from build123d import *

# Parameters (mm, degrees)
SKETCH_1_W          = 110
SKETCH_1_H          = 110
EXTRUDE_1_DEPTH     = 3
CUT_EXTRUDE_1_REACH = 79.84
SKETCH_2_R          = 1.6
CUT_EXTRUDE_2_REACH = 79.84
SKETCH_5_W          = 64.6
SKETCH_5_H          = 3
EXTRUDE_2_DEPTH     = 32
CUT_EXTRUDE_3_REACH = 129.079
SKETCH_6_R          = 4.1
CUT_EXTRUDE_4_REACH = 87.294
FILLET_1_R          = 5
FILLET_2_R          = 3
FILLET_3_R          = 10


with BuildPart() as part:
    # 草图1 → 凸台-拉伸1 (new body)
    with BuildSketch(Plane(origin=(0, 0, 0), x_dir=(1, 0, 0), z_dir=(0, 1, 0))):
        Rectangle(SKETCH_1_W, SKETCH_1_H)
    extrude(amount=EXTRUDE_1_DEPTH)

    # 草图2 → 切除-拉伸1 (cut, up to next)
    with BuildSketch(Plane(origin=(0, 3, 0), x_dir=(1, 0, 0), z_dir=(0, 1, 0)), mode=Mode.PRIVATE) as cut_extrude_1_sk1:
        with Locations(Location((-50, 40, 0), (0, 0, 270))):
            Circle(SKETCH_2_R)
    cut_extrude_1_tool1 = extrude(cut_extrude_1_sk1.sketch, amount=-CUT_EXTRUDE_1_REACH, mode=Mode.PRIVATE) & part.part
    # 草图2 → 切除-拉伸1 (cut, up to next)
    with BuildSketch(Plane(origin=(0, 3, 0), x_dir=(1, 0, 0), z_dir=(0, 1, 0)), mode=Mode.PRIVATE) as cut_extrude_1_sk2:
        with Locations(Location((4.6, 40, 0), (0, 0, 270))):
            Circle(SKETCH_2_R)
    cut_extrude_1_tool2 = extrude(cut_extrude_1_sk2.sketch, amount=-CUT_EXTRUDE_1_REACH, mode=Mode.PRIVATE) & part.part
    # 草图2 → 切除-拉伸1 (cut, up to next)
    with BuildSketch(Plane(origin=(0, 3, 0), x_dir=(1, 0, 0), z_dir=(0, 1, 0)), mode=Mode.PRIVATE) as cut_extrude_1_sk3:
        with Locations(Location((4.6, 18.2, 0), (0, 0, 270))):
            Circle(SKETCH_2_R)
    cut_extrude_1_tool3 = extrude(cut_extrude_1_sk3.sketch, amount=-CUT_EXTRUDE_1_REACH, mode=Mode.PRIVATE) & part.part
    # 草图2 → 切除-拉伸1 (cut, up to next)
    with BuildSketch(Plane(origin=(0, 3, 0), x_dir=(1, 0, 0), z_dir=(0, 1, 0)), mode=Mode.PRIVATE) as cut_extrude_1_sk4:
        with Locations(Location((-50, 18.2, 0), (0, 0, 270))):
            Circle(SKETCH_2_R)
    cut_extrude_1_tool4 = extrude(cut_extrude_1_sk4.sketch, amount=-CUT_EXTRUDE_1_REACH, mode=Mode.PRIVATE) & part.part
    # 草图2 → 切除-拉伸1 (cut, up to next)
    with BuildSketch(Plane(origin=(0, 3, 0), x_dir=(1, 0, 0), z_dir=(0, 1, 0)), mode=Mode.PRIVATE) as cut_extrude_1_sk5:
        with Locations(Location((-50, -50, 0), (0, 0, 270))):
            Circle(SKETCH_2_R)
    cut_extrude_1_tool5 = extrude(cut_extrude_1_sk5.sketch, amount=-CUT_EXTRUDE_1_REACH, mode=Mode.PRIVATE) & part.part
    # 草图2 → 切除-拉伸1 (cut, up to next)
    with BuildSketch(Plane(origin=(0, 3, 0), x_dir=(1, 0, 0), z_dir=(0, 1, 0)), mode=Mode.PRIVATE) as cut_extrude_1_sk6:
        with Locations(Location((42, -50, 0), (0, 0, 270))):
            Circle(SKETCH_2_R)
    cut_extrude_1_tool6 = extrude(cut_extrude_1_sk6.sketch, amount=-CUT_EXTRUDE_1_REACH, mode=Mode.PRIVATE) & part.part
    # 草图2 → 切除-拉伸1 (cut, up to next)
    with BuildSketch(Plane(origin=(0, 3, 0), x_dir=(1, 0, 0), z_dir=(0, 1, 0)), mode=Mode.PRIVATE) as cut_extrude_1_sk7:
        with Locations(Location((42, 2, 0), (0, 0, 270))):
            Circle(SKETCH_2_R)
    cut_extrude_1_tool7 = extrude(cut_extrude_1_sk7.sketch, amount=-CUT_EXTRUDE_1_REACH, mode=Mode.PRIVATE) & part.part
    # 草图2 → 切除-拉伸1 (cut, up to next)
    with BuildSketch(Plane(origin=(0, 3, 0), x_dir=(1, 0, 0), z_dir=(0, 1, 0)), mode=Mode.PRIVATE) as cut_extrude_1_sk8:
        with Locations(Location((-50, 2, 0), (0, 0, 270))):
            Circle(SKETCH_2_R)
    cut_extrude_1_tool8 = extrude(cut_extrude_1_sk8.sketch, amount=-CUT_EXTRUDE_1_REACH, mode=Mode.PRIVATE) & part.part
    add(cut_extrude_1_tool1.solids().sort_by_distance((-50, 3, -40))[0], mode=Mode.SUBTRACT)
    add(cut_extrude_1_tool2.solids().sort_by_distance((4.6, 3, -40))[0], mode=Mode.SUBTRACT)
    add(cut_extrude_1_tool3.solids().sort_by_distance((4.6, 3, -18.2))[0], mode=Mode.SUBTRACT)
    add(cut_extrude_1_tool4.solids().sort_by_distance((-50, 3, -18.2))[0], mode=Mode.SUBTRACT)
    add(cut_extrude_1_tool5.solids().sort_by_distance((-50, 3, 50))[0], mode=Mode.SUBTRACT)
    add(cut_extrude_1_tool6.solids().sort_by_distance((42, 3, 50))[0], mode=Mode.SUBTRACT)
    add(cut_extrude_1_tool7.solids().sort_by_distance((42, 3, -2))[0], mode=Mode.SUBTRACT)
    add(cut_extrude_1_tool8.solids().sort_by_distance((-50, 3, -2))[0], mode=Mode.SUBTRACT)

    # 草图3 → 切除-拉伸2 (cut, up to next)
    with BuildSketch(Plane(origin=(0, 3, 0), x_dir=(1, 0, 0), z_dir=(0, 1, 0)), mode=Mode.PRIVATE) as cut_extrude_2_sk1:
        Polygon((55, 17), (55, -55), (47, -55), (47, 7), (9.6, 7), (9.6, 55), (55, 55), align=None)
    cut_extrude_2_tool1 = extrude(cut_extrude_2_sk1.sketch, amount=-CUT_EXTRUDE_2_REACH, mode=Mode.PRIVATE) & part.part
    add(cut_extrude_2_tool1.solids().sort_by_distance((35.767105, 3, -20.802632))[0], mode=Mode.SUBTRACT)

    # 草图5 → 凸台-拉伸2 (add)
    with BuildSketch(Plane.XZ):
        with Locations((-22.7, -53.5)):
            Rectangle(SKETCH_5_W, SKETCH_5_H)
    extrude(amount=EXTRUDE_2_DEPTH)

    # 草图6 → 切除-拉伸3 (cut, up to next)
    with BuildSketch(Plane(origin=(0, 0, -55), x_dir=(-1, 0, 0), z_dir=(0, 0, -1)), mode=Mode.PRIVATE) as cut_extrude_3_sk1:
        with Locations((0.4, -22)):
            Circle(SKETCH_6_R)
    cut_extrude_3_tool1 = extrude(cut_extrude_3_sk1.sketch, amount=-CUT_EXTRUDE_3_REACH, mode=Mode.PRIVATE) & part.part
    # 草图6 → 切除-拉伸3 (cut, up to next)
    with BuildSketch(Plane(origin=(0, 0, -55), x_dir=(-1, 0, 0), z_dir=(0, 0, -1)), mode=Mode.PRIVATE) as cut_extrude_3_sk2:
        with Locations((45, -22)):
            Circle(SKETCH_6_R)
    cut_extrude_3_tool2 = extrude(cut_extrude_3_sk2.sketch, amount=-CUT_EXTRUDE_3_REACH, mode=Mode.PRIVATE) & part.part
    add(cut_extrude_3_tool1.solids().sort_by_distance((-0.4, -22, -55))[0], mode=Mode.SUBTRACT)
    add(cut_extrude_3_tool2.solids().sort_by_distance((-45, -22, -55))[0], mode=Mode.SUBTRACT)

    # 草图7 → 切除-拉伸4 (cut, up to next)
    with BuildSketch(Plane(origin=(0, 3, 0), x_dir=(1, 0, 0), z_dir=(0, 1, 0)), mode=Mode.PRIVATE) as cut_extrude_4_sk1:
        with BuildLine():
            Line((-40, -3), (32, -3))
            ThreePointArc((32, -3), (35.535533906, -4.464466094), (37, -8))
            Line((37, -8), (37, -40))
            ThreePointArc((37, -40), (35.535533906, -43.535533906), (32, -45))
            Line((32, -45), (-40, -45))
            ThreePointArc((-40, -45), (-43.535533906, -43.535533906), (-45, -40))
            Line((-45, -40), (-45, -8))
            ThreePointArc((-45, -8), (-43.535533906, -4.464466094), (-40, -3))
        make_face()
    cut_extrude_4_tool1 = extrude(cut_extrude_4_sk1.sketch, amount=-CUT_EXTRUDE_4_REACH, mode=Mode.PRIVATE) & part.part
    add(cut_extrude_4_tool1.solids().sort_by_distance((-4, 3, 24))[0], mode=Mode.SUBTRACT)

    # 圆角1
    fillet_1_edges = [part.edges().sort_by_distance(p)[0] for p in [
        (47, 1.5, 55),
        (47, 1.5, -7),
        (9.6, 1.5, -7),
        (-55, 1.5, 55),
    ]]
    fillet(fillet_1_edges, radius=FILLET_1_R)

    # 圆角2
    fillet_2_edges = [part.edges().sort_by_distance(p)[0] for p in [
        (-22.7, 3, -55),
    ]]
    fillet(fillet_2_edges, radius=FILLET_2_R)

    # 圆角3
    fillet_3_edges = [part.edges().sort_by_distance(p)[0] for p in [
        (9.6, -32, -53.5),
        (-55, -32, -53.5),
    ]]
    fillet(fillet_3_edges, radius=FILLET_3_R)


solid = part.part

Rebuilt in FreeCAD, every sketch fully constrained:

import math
import FreeCAD as App
import Part
import Sketcher

V = App.Vector
Q = App.Units.Quantity


def edges_at(feature, points):
    """Names of the edges that pass closest to the given points."""
    edges = feature.Shape.Edges
    near = lambda p: min(range(len(edges)), key=lambda i: edges[i].distToShape(Part.Vertex(*p))[0])
    return sorted({f"Edge{near(p) + 1}" for p in points})

doc = App.newDocument("Part")
body = doc.addObject("PartDesign::Body", "Body")

sketch1 = body.newObject("Sketcher::SketchObject", "Sketch")
sketch1.AttachmentSupport = (doc.getObject("XZ_Plane"), [""])
sketch1.MapMode = "FlatFace"
sketch1.addGeometry([
    Part.LineSegment(V(-55, -55, 0), V(-55, 55, 0)),
    Part.LineSegment(V(-55, 55, 0), V(55, 55, 0)),
    Part.LineSegment(V(55, 55, 0), V(55, -55, 0)),
    Part.LineSegment(V(55, -55, 0), V(-55, -55, 0)),
], False)
sketch1.addConstraint([
    Sketcher.Constraint("Coincident", 0, 2, 1, 1),
    Sketcher.Constraint("Coincident", 1, 2, 2, 1),
    Sketcher.Constraint("Coincident", 2, 2, 3, 1),
    Sketcher.Constraint("Coincident", 3, 2, 0, 1),
    Sketcher.Constraint("Vertical", 0),
    Sketcher.Constraint("Horizontal", 1),
    Sketcher.Constraint("Vertical", 2),
    Sketcher.Constraint("Horizontal", 3),
    Sketcher.Constraint("Symmetric", 0, 2, 2, 2, -1, 1),
    Sketcher.Constraint("Equal", 3, 0),
    Sketcher.Constraint("DistanceX", 1, 1, 1, 2, Q("110 mm")),
])
pad1 = body.newObject("PartDesign::Pad", "Pad")
pad1.Profile = sketch1
pad1.Length = 3
pad1.Reversed = True

sketch2 = body.newObject("Sketcher::SketchObject", "Sketch001")
sketch2.AttachmentSupport = (doc.getObject("XZ_Plane"), [""])
sketch2.MapMode = "FlatFace"
sketch2.AttachmentOffset = App.Placement(V(0, 0, -3), App.Rotation())
sketch2.addGeometry(Part.Circle(V(-50, -40, 0), V(0, 0, 1), 1.6), False)
sketch2.addConstraint([
    Sketcher.Constraint("Diameter", 0, Q("3.2 mm")),
    Sketcher.Constraint("DistanceX", 0, 3, -1, 1, Q("50 mm")),
    Sketcher.Constraint("DistanceY", 0, 3, -1, 1, Q("40 mm")),
])
pocket1 = body.newObject("PartDesign::Pocket", "Pocket")
pocket1.Profile = sketch2
pocket1.Type = "UpToFirst"
pocket1.Reversed = True

sketch3 = body.newObject("Sketcher::SketchObject", "Sketch002")
sketch3.AttachmentSupport = (doc.getObject("XZ_Plane"), [""])
sketch3.MapMode = "FlatFace"
sketch3.AttachmentOffset = App.Placement(V(0, 0, -3), App.Rotation())
sketch3.addGeometry(Part.Circle(V(4.6, -40, 0), V(0, 0, 1), 1.6), False)
sketch3.addConstraint([
    Sketcher.Constraint("Diameter", 0, Q("3.2 mm")),
    Sketcher.Constraint("DistanceY", 0, 3, -1, 1, Q("40 mm")),
    Sketcher.Constraint("DistanceX", -1, 1, 0, 3, Q("4.6 mm")),
])
pocket2 = body.newObject("PartDesign::Pocket", "Pocket001")
pocket2.Profile = sketch3
pocket2.Type = "UpToFirst"
pocket2.Reversed = True

sketch4 = body.newObject("Sketcher::SketchObject", "Sketch003")
sketch4.AttachmentSupport = (doc.getObject("XZ_Plane"), [""])
sketch4.MapMode = "FlatFace"
sketch4.AttachmentOffset = App.Placement(V(0, 0, -3), App.Rotation())
sketch4.addGeometry(Part.Circle(V(4.6, -18.2, 0), V(0, 0, 1), 1.6), False)
sketch4.addConstraint([
    Sketcher.Constraint("Diameter", 0, Q("3.2 mm")),
    Sketcher.Constraint("DistanceX", -1, 1, 0, 3, Q("4.6 mm")),
    Sketcher.Constraint("DistanceY", 0, 3, -1, 1, Q("18.2 mm")),
])
pocket3 = body.newObject("PartDesign::Pocket", "Pocket002")
pocket3.Profile = sketch4
pocket3.Type = "UpToFirst"
pocket3.Reversed = True

sketch5 = body.newObject("Sketcher::SketchObject", "Sketch004")
sketch5.AttachmentSupport = (doc.getObject("XZ_Plane"), [""])
sketch5.MapMode = "FlatFace"
sketch5.AttachmentOffset = App.Placement(V(0, 0, -3), App.Rotation())
sketch5.addGeometry(Part.Circle(V(-50, -18.2, 0), V(0, 0, 1), 1.6), False)
sketch5.addConstraint([
    Sketcher.Constraint("Diameter", 0, Q("3.2 mm")),
    Sketcher.Constraint("DistanceX", 0, 3, -1, 1, Q("50 mm")),
    Sketcher.Constraint("DistanceY", 0, 3, -1, 1, Q("18.2 mm")),
])
pocket4 = body.newObject("PartDesign::Pocket", "Pocket003")
pocket4.Profile = sketch5
pocket4.Type = "UpToFirst"
pocket4.Reversed = True

sketch6 = body.newObject("Sketcher::SketchObject", "Sketch005")
sketch6.AttachmentSupport = (doc.getObject("XZ_Plane"), [""])
sketch6.MapMode = "FlatFace"
sketch6.AttachmentOffset = App.Placement(V(0, 0, -3), App.Rotation())
sketch6.addGeometry(Part.Circle(V(-50, 50, 0), V(0, 0, 1), 1.6), False)
sketch6.addConstraint([
    Sketcher.Constraint("Diameter", 0, Q("3.2 mm")),
    Sketcher.Constraint("DistanceX", 0, 3, -1, 1, Q("50 mm")),
    Sketcher.Constraint("DistanceY", -1, 1, 0, 3, Q("50 mm")),
])
pocket5 = body.newObject("PartDesign::Pocket", "Pocket004")
pocket5.Profile = sketch6
pocket5.Type = "UpToFirst"
pocket5.Reversed = True

sketch7 = body.newObject("Sketcher::SketchObject", "Sketch006")
sketch7.AttachmentSupport = (doc.getObject("XZ_Plane"), [""])
sketch7.MapMode = "FlatFace"
sketch7.AttachmentOffset = App.Placement(V(0, 0, -3), App.Rotation())
sketch7.addGeometry(Part.Circle(V(42, 50, 0), V(0, 0, 1), 1.6), False)
sketch7.addConstraint([
    Sketcher.Constraint("Diameter", 0, Q("3.2 mm")),
    Sketcher.Constraint("DistanceX", -1, 1, 0, 3, Q("42 mm")),
    Sketcher.Constraint("DistanceY", -1, 1, 0, 3, Q("50 mm")),
])
pocket6 = body.newObject("PartDesign::Pocket", "Pocket005")
pocket6.Profile = sketch7
pocket6.Type = "UpToFirst"
pocket6.Reversed = True

sketch8 = body.newObject("Sketcher::SketchObject", "Sketch007")
sketch8.AttachmentSupport = (doc.getObject("XZ_Plane"), [""])
sketch8.MapMode = "FlatFace"
sketch8.AttachmentOffset = App.Placement(V(0, 0, -3), App.Rotation())
sketch8.addGeometry(Part.Circle(V(42, -2, 0), V(0, 0, 1), 1.6), False)
sketch8.addConstraint([
    Sketcher.Constraint("Diameter", 0, Q("3.2 mm")),
    Sketcher.Constraint("DistanceX", -1, 1, 0, 3, Q("42 mm")),
    Sketcher.Constraint("DistanceY", 0, 3, -1, 1, Q("2 mm")),
])
pocket7 = body.newObject("PartDesign::Pocket", "Pocket006")
pocket7.Profile = sketch8
pocket7.Type = "UpToFirst"
pocket7.Reversed = True

sketch9 = body.newObject("Sketcher::SketchObject", "Sketch008")
sketch9.AttachmentSupport = (doc.getObject("XZ_Plane"), [""])
sketch9.MapMode = "FlatFace"
sketch9.AttachmentOffset = App.Placement(V(0, 0, -3), App.Rotation())
sketch9.addGeometry(Part.Circle(V(-50, -2, 0), V(0, 0, 1), 1.6), False)
sketch9.addConstraint([
    Sketcher.Constraint("Diameter", 0, Q("3.2 mm")),
    Sketcher.Constraint("DistanceX", 0, 3, -1, 1, Q("50 mm")),
    Sketcher.Constraint("DistanceY", 0, 3, -1, 1, Q("2 mm")),
])
pocket8 = body.newObject("PartDesign::Pocket", "Pocket007")
pocket8.Profile = sketch9
pocket8.Type = "UpToFirst"
pocket8.Reversed = True

sketch10 = body.newObject("Sketcher::SketchObject", "Sketch009")
sketch10.AttachmentSupport = (doc.getObject("XZ_Plane"), [""])
sketch10.MapMode = "FlatFace"
sketch10.AttachmentOffset = App.Placement(V(0, 0, -3), App.Rotation())
sketch10.addGeometry([
    Part.LineSegment(V(55, 55, 0), V(55, -55, 0)),
    Part.LineSegment(V(55, -55, 0), V(9.6, -55, 0)),
    Part.LineSegment(V(9.6, -55, 0), V(9.6, -7, 0)),
    Part.LineSegment(V(9.6, -7, 0), V(47, -7, 0)),
    Part.LineSegment(V(47, -7, 0), V(47, 55, 0)),
    Part.LineSegment(V(47, 55, 0), V(55, 55, 0)),
], False)
sketch10.addConstraint([
    Sketcher.Constraint("Coincident", 0, 2, 1, 1),
    Sketcher.Constraint("Coincident", 1, 2, 2, 1),
    Sketcher.Constraint("Coincident", 2, 2, 3, 1),
    Sketcher.Constraint("Coincident", 3, 2, 4, 1),
    Sketcher.Constraint("Coincident", 4, 2, 5, 1),
    Sketcher.Constraint("Coincident", 5, 2, 0, 1),
    Sketcher.Constraint("Vertical", 0),
    Sketcher.Constraint("Horizontal", 1),
    Sketcher.Constraint("Vertical", 2),
    Sketcher.Constraint("Horizontal", 3),
    Sketcher.Constraint("Vertical", 4),
    Sketcher.Constraint("Horizontal", 5),
    Sketcher.Constraint("DistanceX", 5, 1, 5, 2, Q("8 mm")),
    Sketcher.Constraint("DistanceY", 0, 2, 0, 1, Q("110 mm")),
    Sketcher.Constraint("DistanceY", 2, 1, 2, 2, Q("48 mm")),
    Sketcher.Constraint("DistanceX", 1, 2, 1, 1, Q("45.4 mm")),
    Sketcher.Constraint("DistanceX", -1, 1, 0, 2, Q("55 mm")),
    Sketcher.Constraint("DistanceY", 0, 2, -1, 1, Q("55 mm")),
])
pocket9 = body.newObject("PartDesign::Pocket", "Pocket008")
pocket9.Profile = sketch10
pocket9.Type = "UpToFirst"
pocket9.Reversed = True

sketch11 = body.newObject("Sketcher::SketchObject", "Sketch010")
sketch11.AttachmentSupport = (doc.getObject("XZ_Plane"), [""])
sketch11.MapMode = "FlatFace"
sketch11.addGeometry([
    Part.LineSegment(V(-55, -52, 0), V(-55, -55, 0)),
    Part.LineSegment(V(-55, -55, 0), V(9.6, -55, 0)),
    Part.LineSegment(V(9.6, -55, 0), V(9.6, -52, 0)),
    Part.LineSegment(V(9.6, -52, 0), V(-55, -52, 0)),
], False)
sketch11.addConstraint([
    Sketcher.Constraint("Coincident", 0, 2, 1, 1),
    Sketcher.Constraint("Coincident", 1, 2, 2, 1),
    Sketcher.Constraint("Coincident", 2, 2, 3, 1),
    Sketcher.Constraint("Coincident", 3, 2, 0, 1),
    Sketcher.Constraint("Vertical", 0),
    Sketcher.Constraint("Horizontal", 1),
    Sketcher.Constraint("Vertical", 2),
    Sketcher.Constraint("Horizontal", 3),
    Sketcher.Constraint("DistanceY", 0, 2, 0, 1, Q("3 mm")),
    Sketcher.Constraint("DistanceX", 1, 1, 1, 2, Q("64.6 mm")),
    Sketcher.Constraint("DistanceX", 0, 2, -1, 1, Q("55 mm")),
    Sketcher.Constraint("DistanceY", 0, 2, -1, 1, Q("55 mm")),
])
pad2 = body.newObject("PartDesign::Pad", "Pad001")
pad2.Profile = sketch11
pad2.Length = 32

sketch12 = body.newObject("Sketcher::SketchObject", "Sketch011")
sketch12.AttachmentSupport = (doc.getObject("XY_Plane"), [""])
sketch12.MapMode = "FlatFace"
sketch12.AttachmentOffset = App.Placement(V(0, 0, -55), App.Rotation())
sketch12.addGeometry(Part.Circle(V(-0.4, -22, 0), V(0, 0, 1), 4.1), False)
sketch12.addConstraint([
    Sketcher.Constraint("Diameter", 0, Q("8.2 mm")),
    Sketcher.Constraint("DistanceY", 0, 3, -1, 1, Q("22 mm")),
    Sketcher.Constraint("DistanceX", 0, 3, -1, 1, Q("0.4 mm")),
])
pocket10 = body.newObject("PartDesign::Pocket", "Pocket009")
pocket10.Profile = sketch12
pocket10.Type = "UpToFirst"
pocket10.Reversed = True

sketch13 = body.newObject("Sketcher::SketchObject", "Sketch012")
sketch13.AttachmentSupport = (doc.getObject("XY_Plane"), [""])
sketch13.MapMode = "FlatFace"
sketch13.AttachmentOffset = App.Placement(V(0, 0, -55), App.Rotation())
sketch13.addGeometry(Part.Circle(V(-45, -22, 0), V(0, 0, 1), 4.1), False)
sketch13.addConstraint([
    Sketcher.Constraint("Diameter", 0, Q("8.2 mm")),
    Sketcher.Constraint("DistanceX", 0, 3, -1, 1, Q("45 mm")),
    Sketcher.Constraint("DistanceY", 0, 3, -1, 1, Q("22 mm")),
])
pocket11 = body.newObject("PartDesign::Pocket", "Pocket010")
pocket11.Profile = sketch13
pocket11.Type = "UpToFirst"
pocket11.Reversed = True

sketch14 = body.newObject("Sketcher::SketchObject", "Sketch013")
sketch14.AttachmentSupport = (doc.getObject("XZ_Plane"), [""])
sketch14.MapMode = "FlatFace"
sketch14.AttachmentOffset = App.Placement(V(0, 0, -3), App.Rotation())
sketch14.addGeometry([
    Part.LineSegment(V(32, 3, 0), V(-40, 3, 0)),
    Part.ArcOfCircle(Part.Circle(V(-40, 8, 0), V(0, 0, 1), 5), math.radians(180), math.radians(270)),
    Part.LineSegment(V(-45, 8, 0), V(-45, 40, 0)),
    Part.ArcOfCircle(Part.Circle(V(-40, 40, 0), V(0, 0, 1), 5), math.radians(90), math.radians(180)),
    Part.LineSegment(V(-40, 45, 0), V(32, 45, 0)),
    Part.ArcOfCircle(Part.Circle(V(32, 40, 0), V(0, 0, 1), 5), math.radians(0), math.radians(90)),
    Part.LineSegment(V(37, 40, 0), V(37, 8, 0)),
    Part.ArcOfCircle(Part.Circle(V(32, 8, 0), V(0, 0, 1), 5), math.radians(-90), math.radians(0)),
], False)
sketch14.addConstraint([
    Sketcher.Constraint("Tangent", 0, 2, 1, 2),
    Sketcher.Constraint("Tangent", 1, 1, 2, 1),
    Sketcher.Constraint("Tangent", 2, 2, 3, 2),
    Sketcher.Constraint("Tangent", 3, 1, 4, 1),
    Sketcher.Constraint("Tangent", 4, 2, 5, 2),
    Sketcher.Constraint("Tangent", 5, 1, 6, 1),
    Sketcher.Constraint("Tangent", 6, 2, 7, 2),
    Sketcher.Constraint("Tangent", 7, 1, 0, 1),
    Sketcher.Constraint("Horizontal", 0),
    Sketcher.Constraint("Vertical", 2),
    Sketcher.Constraint("Horizontal", 4),
    Sketcher.Constraint("Vertical", 6),
    Sketcher.Constraint("Equal", 1, 3),
    Sketcher.Constraint("Equal", 3, 5),
    Sketcher.Constraint("Equal", 5, 7),
    Sketcher.Constraint("Radius", 1, Q("5 mm")),
    Sketcher.Constraint("DistanceX", 0, 2, 0, 1, Q("72 mm")),
    Sketcher.Constraint("DistanceY", 2, 1, 2, 2, Q("32 mm")),
    Sketcher.Constraint("DistanceX", 1, 3, -1, 1, Q("40 mm")),
    Sketcher.Constraint("DistanceY", -1, 1, 1, 3, Q("8 mm")),
])
pocket12 = body.newObject("PartDesign::Pocket", "Pocket011")
pocket12.Profile = sketch14
pocket12.Type = "UpToFirst"
pocket12.Reversed = True
doc.recompute()

fillet = body.newObject("PartDesign::Fillet", "Fillet")
fillet.Base = (pocket12, edges_at(pocket12, [
    (47, 1.5, 55),
    (47, 1.5, -7),
    (9.6, 1.5, -7),
    (-55, 1.5, 55),
]))
fillet.Radius = 5
doc.recompute()

fillet2 = body.newObject("PartDesign::Fillet", "Fillet001")
fillet2.Base = (fillet, edges_at(fillet, [(-22.7, 3, -55)]))
fillet2.Radius = 3
doc.recompute()

fillet3 = body.newObject("PartDesign::Fillet", "Fillet002")
fillet3.Base = (fillet2, edges_at(fillet2, [(9.6, -32, -53.5), (-55, -32, -53.5)]))
fillet3.Radius = 10

doc.recompute()
